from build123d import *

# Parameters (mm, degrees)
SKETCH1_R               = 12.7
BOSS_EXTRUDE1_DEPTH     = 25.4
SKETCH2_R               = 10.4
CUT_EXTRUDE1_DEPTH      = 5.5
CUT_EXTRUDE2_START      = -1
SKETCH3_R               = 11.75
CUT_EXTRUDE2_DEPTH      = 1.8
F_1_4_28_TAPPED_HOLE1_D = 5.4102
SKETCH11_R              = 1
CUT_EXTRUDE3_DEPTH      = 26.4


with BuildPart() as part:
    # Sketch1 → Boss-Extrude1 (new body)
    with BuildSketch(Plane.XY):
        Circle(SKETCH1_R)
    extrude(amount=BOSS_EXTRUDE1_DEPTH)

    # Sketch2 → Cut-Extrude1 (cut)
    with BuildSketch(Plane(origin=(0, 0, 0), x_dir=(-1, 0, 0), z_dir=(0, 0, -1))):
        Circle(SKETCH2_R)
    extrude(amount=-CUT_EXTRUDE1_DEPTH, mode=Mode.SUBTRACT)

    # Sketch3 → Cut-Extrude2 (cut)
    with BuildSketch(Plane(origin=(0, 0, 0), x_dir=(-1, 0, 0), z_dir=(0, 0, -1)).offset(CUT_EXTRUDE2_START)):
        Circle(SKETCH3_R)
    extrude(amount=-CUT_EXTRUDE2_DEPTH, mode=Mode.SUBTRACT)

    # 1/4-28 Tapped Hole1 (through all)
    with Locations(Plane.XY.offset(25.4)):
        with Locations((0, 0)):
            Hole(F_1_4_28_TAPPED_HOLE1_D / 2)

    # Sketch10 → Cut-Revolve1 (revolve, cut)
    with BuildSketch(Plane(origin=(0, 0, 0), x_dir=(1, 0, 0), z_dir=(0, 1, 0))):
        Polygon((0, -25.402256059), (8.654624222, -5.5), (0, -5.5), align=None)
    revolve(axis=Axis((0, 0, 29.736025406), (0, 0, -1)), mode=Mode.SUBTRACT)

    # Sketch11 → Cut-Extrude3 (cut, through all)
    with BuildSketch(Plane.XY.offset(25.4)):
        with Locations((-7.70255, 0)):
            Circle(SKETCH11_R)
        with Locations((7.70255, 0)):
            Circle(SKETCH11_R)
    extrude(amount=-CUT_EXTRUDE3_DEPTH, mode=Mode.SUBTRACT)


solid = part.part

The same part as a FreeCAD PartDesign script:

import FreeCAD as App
import Part
import Sketcher


def add_polygon(sketch, points):
    """Adds a closed chain of lines whose ends are joined by coincident constraints."""
    first, n = sketch.GeometryCount, len(points)
    for a, b in zip(points, points[1:] + points[:1]):
        sketch.addGeometry(Part.LineSegment(App.Vector(*a, 0), App.Vector(*b, 0)), False)
    for i in range(n):
        sketch.addConstraint(Sketcher.Constraint("Coincident", first + i, 2, first + (i + 1) % n, 1))

doc = App.newDocument("Part")
params = doc.addObject("Spreadsheet::Sheet", "Params")
for row, (alias, value) in enumerate([
    ("sketch1_diameter", "25.4 mm"),
    ("pad1_length", "25.4 mm"),
    ("sketch2_diameter", "20.8 mm"),
    ("pocket1_length", "5.5 mm"),
    ("sketch3_diameter", "23.5 mm"),
    ("pocket2_length", "1.8 mm"),
    ("hole_diameter", "5.4102 mm"),
    ("groove_angle", "360 deg"),
    ("sketch6_diameter", "2 mm"),
], start=1):
    params.set(f"A{row}", alias)
    params.set(f"B{row}", "=" + value)
    params.setAlias(f"B{row}", alias)

body = doc.addObject("PartDesign::Body", "Body")

sketch1 = body.newObject("Sketcher::SketchObject", "Sketch")
sketch1.AttachmentSupport = (doc.getObject("XY_Plane"), [""])
sketch1.MapMode = "FlatFace"
sketch1.addGeometry(Part.Circle(App.Vector(0, 0, 0), App.Vector(0, 0, 1), 13), False)
sketch1.addConstraint([
    Sketcher.Constraint("Coincident", 0, 3, -1, 1),
    Sketcher.Constraint("Diameter", 0, 25.4),
])
sketch1.setExpression("Constraints[1]", "Params.sketch1_diameter")
pad1 = body.newObject("PartDesign::Pad", "Pad")
pad1.Profile = sketch1
pad1.setExpression("Length", "Params.pad1_length")

sketch2 = body.newObject("Sketcher::SketchObject", "Sketch001")
sketch2.AttachmentSupport = (doc.getObject("XY_Plane"), [""])
sketch2.MapMode = "FlatFace"
sketch2.addGeometry(Part.Circle(App.Vector(0, 0, 0), App.Vector(0, 0, 1), 10), False)
sketch2.addConstraint([
    Sketcher.Constraint("Coincident", 0, 3, -1, 1),
    Sketcher.Constraint("Diameter", 0, 20.8),
])
sketch2.setExpression("Constraints[1]", "Params.sketch2_diameter")
pocket1 = body.newObject("PartDesign::Pocket", "Pocket")
pocket1.Profile = sketch2
pocket1.setExpression("Length", "Params.pocket1_length")
pocket1.Reversed = True

sketch3 = body.newObject("Sketcher::SketchObject", "Sketch002")
sketch3.AttachmentSupport = (doc.getObject("XY_Plane"), [""])
sketch3.MapMode = "FlatFace"
sketch3.AttachmentOffset = App.Placement(App.Vector(0, 0, 1), App.Rotation())
sketch3.addGeometry(Part.Circle(App.Vector(0, 0, 0), App.Vector(0, 0, 1), 12), False)
sketch3.addConstraint([
    Sketcher.Constraint("Coincident", 0, 3, -1, 1),
    Sketcher.Constraint("Diameter", 0, 23.5),
])
sketch3.setExpression("Constraints[1]", "Params.sketch3_diameter")
pocket2 = body.newObject("PartDesign::Pocket", "Pocket001")
pocket2.Profile = sketch3
pocket2.setExpression("Length", "Params.pocket2_length")
pocket2.Reversed = True

sketch4 = body.newObject("Sketcher::SketchObject", "Sketch003")
sketch4.AttachmentSupport = (doc.getObject("XY_Plane"), [""])
sketch4.MapMode = "FlatFace"
sketch4.AttachmentOffset = App.Placement(App.Vector(0, 0, 25.4), App.Rotation())
sketch4.addGeometry(Part.Circle(App.Vector(0, 0, 0), App.Vector(0, 0, 1), 2.7), False)
sketch4.addConstraint([
    Sketcher.Constraint("Coincident", 0, 3, -1, 1),
    Sketcher.Constraint("Diameter", 0, 5.4102),
])
doc.recompute()
hole = body.newObject("PartDesign::Hole", "Hole")
hole.Profile = sketch4
hole.ThreadType = "None"
hole.setExpression("Diameter", "Params.hole_diameter")
hole.DepthType = "ThroughAll"

sketch5 = body.newObject("Sketcher::SketchObject", "Sketch004")
sketch5.AttachmentSupport = (doc.getObject("XZ_Plane"), [""])
sketch5.MapMode = "FlatFace"
add_polygon(sketch5, [(0, 25), (9, 6), (0, 6)])
sketch5.addConstraint([
    Sketcher.Constraint("Horizontal", 1),
    Sketcher.Constraint("Vertical", 2),
    Sketcher.Constraint("PointOnObject", 1, 2, -2),
    Sketcher.Constraint("DistanceY", -1, 1, 0, 2, 5.5),
    Sketcher.Constraint("DistanceX", 1, 2, 1, 1, 8.654624),
    Sketcher.Constraint("DistanceY", 2, 1, 2, 2, 19.902256),
])
groove = body.newObject("PartDesign::Groove", "Groove")
groove.Profile = sketch5
groove.ReferenceAxis = (sketch5, ["V_Axis"])
groove.setExpression("Angle", "Params.groove_angle")

sketch6 = body.newObject("Sketcher::SketchObject", "Sketch005")
sketch6.AttachmentSupport = (doc.getObject("XY_Plane"), [""])
sketch6.MapMode = "FlatFace"
sketch6.AttachmentOffset = App.Placement(App.Vector(0, 0, 25.4), App.Rotation())
sketch6.addGeometry([
    Part.Circle(App.Vector(-7.7, 0, 0), App.Vector(0, 0, 1), 1),
    Part.Circle(App.Vector(7.7, 0, 0), App.Vector(0, 0, 1), 1),
], False)
sketch6.addConstraint([
    Sketcher.Constraint("Equal", 0, 1),
    Sketcher.Constraint("Symmetric", 0, 3, 1, 3, -1, 1),
    Sketcher.Constraint("PointOnObject", 0, 3, -1),
    Sketcher.Constraint("Diameter", 0, 2.0),
    Sketcher.Constraint("DistanceX", 0, 3, 1, 3, 15.4051),
])
sketch6.setExpression("Constraints[3]", "Params.sketch6_diameter")
pocket3 = body.newObject("PartDesign::Pocket", "Pocket002")
pocket3.Profile = sketch6
pocket3.Type = "ThroughAll"

doc.recompute()
